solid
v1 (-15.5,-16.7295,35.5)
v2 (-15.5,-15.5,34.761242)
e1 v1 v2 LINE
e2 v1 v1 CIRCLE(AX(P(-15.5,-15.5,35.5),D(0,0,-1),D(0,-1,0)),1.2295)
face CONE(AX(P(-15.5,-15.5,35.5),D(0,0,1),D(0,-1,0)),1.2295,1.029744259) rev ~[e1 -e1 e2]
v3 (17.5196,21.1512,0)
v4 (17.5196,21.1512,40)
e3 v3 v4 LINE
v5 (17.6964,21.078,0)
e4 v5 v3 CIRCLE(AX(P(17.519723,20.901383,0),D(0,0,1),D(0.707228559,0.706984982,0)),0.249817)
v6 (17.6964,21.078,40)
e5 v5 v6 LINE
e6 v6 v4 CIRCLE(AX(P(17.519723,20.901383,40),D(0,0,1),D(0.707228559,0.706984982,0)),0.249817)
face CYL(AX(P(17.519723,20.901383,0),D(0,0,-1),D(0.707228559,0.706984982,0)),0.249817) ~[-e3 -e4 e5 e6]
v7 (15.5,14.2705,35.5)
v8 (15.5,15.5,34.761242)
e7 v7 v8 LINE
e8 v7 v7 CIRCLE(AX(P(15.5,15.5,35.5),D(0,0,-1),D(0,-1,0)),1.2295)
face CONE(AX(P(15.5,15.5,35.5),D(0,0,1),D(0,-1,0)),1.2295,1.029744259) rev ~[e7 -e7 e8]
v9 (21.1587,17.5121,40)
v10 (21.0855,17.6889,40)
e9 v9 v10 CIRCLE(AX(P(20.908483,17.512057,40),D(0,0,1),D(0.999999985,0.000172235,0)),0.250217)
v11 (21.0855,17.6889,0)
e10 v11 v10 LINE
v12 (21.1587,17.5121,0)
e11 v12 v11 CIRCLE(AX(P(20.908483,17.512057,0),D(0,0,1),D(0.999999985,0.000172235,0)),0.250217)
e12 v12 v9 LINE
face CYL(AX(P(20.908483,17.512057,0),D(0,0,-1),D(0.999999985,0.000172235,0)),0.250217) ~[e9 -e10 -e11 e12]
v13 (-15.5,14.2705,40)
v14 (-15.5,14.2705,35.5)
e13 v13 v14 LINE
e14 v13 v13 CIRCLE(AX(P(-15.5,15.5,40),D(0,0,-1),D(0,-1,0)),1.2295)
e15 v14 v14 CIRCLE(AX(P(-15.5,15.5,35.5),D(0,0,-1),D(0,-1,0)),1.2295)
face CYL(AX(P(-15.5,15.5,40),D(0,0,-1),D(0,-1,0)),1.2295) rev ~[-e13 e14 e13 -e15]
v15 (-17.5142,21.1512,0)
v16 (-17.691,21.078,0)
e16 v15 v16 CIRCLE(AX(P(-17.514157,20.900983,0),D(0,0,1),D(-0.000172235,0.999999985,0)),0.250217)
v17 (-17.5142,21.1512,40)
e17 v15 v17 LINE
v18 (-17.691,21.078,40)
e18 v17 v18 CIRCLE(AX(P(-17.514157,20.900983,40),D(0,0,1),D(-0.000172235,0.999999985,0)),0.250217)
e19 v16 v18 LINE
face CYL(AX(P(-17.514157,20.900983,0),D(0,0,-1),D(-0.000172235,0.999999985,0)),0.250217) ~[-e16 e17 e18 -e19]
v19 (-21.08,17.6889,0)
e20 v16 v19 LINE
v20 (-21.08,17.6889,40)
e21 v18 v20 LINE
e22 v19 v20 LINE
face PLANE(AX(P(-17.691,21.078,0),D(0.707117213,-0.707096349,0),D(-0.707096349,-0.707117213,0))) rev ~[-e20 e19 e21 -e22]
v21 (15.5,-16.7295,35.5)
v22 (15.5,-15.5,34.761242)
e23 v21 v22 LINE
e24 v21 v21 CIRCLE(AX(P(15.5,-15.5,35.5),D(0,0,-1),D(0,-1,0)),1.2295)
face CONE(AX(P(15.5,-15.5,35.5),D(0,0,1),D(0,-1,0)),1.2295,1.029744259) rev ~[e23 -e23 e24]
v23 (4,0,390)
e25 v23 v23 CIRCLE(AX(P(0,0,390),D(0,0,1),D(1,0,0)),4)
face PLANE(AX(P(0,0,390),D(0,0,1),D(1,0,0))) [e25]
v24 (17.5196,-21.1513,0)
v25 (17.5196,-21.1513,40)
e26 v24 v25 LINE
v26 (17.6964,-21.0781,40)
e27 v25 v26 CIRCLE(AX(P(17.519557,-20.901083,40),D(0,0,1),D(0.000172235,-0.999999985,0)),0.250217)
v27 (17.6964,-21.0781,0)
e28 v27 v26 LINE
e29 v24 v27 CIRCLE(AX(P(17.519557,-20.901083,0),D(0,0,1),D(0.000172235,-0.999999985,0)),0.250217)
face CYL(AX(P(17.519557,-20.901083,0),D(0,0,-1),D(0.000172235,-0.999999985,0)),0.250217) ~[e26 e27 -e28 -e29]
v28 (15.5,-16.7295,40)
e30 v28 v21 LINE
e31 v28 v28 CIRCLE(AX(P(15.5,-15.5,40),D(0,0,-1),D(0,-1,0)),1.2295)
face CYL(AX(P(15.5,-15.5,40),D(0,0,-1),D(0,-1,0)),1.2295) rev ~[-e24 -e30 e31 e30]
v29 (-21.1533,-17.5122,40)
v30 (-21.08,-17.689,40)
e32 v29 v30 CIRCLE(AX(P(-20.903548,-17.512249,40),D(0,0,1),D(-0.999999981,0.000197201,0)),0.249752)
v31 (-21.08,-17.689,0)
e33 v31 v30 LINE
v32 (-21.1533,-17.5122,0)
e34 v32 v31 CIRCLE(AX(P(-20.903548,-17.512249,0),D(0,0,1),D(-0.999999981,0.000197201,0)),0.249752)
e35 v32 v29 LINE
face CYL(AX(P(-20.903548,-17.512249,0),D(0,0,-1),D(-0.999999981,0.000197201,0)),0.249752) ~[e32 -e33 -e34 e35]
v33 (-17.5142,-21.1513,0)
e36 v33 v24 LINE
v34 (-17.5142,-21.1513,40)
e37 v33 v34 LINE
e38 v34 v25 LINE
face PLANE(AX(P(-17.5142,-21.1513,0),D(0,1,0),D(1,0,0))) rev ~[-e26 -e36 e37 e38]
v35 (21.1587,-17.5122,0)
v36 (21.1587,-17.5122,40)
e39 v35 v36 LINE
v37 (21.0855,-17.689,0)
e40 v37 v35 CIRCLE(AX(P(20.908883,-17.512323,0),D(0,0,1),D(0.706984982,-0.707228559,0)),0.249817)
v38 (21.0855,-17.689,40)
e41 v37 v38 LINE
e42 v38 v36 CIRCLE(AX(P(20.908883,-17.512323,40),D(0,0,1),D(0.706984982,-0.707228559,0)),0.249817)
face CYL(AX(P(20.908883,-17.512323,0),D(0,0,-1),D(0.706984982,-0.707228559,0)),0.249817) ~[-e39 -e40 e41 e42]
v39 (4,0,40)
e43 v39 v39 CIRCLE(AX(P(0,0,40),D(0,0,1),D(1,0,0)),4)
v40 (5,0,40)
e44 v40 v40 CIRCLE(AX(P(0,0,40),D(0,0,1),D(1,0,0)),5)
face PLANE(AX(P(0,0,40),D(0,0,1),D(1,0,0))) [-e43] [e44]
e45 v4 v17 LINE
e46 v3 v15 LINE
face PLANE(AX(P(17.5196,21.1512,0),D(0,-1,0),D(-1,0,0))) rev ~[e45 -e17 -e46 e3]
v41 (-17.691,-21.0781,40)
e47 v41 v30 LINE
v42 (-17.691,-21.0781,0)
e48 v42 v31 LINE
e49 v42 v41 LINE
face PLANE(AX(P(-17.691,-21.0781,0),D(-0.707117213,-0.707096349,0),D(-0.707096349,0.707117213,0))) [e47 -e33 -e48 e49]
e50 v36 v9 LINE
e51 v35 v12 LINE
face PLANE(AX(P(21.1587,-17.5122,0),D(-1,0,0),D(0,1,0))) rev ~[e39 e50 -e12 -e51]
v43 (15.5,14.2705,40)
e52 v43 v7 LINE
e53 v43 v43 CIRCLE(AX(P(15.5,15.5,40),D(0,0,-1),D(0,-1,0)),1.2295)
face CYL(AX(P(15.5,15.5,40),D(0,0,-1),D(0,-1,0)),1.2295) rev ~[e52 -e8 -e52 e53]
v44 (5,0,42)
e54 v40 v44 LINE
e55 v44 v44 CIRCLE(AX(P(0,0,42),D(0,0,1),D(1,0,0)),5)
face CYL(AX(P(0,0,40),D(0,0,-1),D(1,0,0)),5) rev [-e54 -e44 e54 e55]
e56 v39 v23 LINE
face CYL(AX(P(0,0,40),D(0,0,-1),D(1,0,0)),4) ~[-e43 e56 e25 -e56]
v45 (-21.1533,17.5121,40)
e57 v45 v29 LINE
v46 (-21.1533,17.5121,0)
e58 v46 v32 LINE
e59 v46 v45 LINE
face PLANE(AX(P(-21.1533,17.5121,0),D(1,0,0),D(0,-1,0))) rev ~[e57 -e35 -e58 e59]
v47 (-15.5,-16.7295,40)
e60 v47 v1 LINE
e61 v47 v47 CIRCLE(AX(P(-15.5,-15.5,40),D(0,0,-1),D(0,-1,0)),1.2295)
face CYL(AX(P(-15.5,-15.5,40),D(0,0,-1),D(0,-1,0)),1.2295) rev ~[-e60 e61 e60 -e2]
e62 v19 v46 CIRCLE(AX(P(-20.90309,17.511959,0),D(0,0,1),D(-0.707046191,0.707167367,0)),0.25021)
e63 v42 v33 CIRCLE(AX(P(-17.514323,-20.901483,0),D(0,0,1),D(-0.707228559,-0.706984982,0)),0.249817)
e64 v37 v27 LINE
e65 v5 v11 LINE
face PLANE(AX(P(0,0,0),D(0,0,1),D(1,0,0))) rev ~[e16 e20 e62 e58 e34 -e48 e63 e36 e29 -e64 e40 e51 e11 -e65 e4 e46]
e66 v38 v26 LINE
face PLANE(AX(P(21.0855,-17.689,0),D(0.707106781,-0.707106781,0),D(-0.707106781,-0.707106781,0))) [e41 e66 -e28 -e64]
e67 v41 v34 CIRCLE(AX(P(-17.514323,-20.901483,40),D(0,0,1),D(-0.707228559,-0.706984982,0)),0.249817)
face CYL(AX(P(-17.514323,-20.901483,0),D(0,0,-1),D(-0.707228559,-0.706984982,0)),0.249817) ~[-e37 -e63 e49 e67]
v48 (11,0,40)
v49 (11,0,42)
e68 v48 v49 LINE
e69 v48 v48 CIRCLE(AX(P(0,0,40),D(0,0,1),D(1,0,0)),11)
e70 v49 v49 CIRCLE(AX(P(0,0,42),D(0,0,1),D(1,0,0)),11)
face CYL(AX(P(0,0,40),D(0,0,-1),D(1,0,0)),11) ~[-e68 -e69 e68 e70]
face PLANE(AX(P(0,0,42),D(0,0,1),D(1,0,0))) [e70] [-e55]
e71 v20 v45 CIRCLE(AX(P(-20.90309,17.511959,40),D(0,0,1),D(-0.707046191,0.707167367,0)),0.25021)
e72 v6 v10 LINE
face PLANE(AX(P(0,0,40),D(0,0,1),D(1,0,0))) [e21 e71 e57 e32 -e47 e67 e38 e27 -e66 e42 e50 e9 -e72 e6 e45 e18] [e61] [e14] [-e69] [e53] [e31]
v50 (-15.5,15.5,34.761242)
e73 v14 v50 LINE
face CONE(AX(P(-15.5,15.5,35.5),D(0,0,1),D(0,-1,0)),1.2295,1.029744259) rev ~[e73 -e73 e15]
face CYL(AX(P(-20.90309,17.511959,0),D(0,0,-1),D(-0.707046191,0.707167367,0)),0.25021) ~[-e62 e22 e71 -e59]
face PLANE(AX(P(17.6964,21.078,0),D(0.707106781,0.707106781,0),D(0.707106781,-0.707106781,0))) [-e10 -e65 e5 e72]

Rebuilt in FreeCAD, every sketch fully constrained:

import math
import FreeCAD as App
import Part
import Sketcher

doc = App.newDocument("Part")
body = doc.addObject("PartDesign::Body", "Body")

sketch1 = body.newObject("Sketcher::SketchObject", "Sketch")
sketch1.AttachmentSupport = (doc.getObject("XY_Plane"), [""])
sketch1.MapMode = "FlatFace"
sketch1.addGeometry([
    Part.ArcOfCircle(Part.Circle(App.Vector(17.52, 20.9, 0), App.Vector(0, 0, 1), 0.25), math.radians(45), math.radians(90)),
    Part.LineSegment(App.Vector(17.52, 21.15, 0), App.Vector(-17.51, 21.15, 0)),
    Part.ArcOfCircle(Part.Circle(App.Vector(-17.51, 20.9, 0), App.Vector(0, 0, 1), 0.25), math.radians(90), math.radians(135)),
    Part.LineSegment(App.Vector(-17.69, 21.08, 0), App.Vector(-21.08, 17.69, 0)),
    Part.ArcOfCircle(Part.Circle(App.Vector(-20.9, 17.51, 0), App.Vector(0, 0, 1), 0.25), math.radians(135), math.radians(180)),
    Part.LineSegment(App.Vector(-21.15, 17.51, 0), App.Vector(-21.15, -17.51, 0)),
    Part.ArcOfCircle(Part.Circle(App.Vector(-20.9, -17.51, 0), App.Vector(0, 0, 1), 0.25), math.radians(180), math.radians(225)),
    Part.LineSegment(App.Vector(-21.08, -17.69, 0), App.Vector(-17.69, -21.08, 0)),
    Part.ArcOfCircle(Part.Circle(App.Vector(-17.51, -20.9, 0), App.Vector(0, 0, 1), 0.25), math.radians(-135), math.radians(-90)),
    Part.LineSegment(App.Vector(-17.51, -21.15, 0), App.Vector(17.52, -21.15, 0)),
    Part.ArcOfCircle(Part.Circle(App.Vector(17.52, -20.9, 0), App.Vector(0, 0, 1), 0.25), math.radians(-90), math.radians(-45)),
    Part.LineSegment(App.Vector(17.7, -21.08, 0), App.Vector(21.09, -17.69, 0)),
    Part.ArcOfCircle(Part.Circle(App.Vector(20.91, -17.51, 0), App.Vector(0, 0, 1), 0.25), math.radians(-45), math.radians(0)),
    Part.LineSegment(App.Vector(21.16, -17.51, 0), App.Vector(21.16, 17.51, 0)),
    Part.ArcOfCircle(Part.Circle(App.Vector(20.91, 17.51, 0), App.Vector(0, 0, 1), 0.25), math.radians(0), math.radians(45)),
    Part.LineSegment(App.Vector(21.09, 17.69, 0), App.Vector(17.7, 21.08, 0)),
], False)
sketch1.addConstraint([
    Sketcher.Constraint("Tangent", 0, 2, 1, 1),
    Sketcher.Constraint("Tangent", 1, 2, 2, 1),
    Sketcher.Constraint("Tangent", 2, 2, 3, 1),
    Sketcher.Constraint("Tangent", 3, 2, 4, 1),
    Sketcher.Constraint("Tangent", 4, 2, 5, 1),
    Sketcher.Constraint("Tangent", 5, 2, 6, 1),
    Sketcher.Constraint("Tangent", 6, 2, 7, 1),
    Sketcher.Constraint("Tangent", 7, 2, 8, 1),
    Sketcher.Constraint("Tangent", 8, 2, 9, 1),
    Sketcher.Constraint("Tangent", 9, 2, 10, 1),
    Sketcher.Constraint("Tangent", 10, 2, 11, 1),
    Sketcher.Constraint("Tangent", 11, 2, 12, 1),
    Sketcher.Constraint("Tangent", 12, 2, 13, 1),
    Sketcher.Constraint("Tangent", 13, 2, 14, 1),
    Sketcher.Constraint("Tangent", 14, 2, 15, 1),
    Sketcher.Constraint("Tangent", 15, 2, 0, 1),
    Sketcher.Constraint("Horizontal", 1),
    Sketcher.Constraint("Vertical", 5),
    Sketcher.Constraint("Horizontal", 9),
    Sketcher.Constraint("Vertical", 13),
    Sketcher.Constraint("Equal", 0, 2),
    Sketcher.Constraint("Equal", 2, 4),
    Sketcher.Constraint("Equal", 4, 6),
    Sketcher.Constraint("Equal", 6, 8),
    Sketcher.Constraint("Equal", 8, 10),
    Sketcher.Constraint("Equal", 10, 12),
    Sketcher.Constraint("Equal", 12, 14),
    Sketcher.Constraint("Symmetric", 2, 3, 8, 3, -1),
    Sketcher.Constraint("Symmetric", 11, 2, 14, 2, -1),
    Sketcher.Constraint("Perpendicular", 3, 7),
    Sketcher.Constraint("Perpendicular", 7, 11),
    Sketcher.Constraint("Perpendicular", 11, 15),
    Sketcher.Constraint("Horizontal", 6, 3, 12, 3),
    Sketcher.Constraint("Radius", 0, 0.25),
    Sketcher.Constraint("DistanceX", 3, 2, -1, 1, 21.08),
    Sketcher.Constraint("Distance", 11, 4.793),
    Sketcher.Constraint("DistanceX", 1, 2, 1, 1, 35.0338),
    Sketcher.Constraint("DistanceY", 5, 2, 5, 1, 35.0243),
])
pad1 = body.newObject("PartDesign::Pad", "Pad")
pad1.Profile = sketch1
pad1.Length = 40

sketch2 = body.newObject("Sketcher::SketchObject", "Sketch001")
sketch2.AttachmentSupport = (doc.getObject("XY_Plane"), [""])
sketch2.MapMode = "FlatFace"
sketch2.AttachmentOffset = App.Placement(App.Vector(0, 0, 40), App.Rotation())
sketch2.addGeometry([
    Part.Circle(App.Vector(0, 0, 0), App.Vector(0, 0, 1), 11),
    Part.Circle(App.Vector(0, 0, 0), App.Vector(0, 0, 1), 5),
], False)
sketch2.addConstraint([
    Sketcher.Constraint("Coincident", 0, 3, -1, 1),
    Sketcher.Constraint("Coincident", 1, 3, -1, 1),
    Sketcher.Constraint("Diameter", 0, 22.0),
    Sketcher.Constraint("Diameter", 1, 10.0),
])
pad2 = body.newObject("PartDesign::Pad", "Pad001")
pad2.Profile = sketch2
pad2.Length = 2

sketch3 = body.newObject("Sketcher::SketchObject", "Sketch002")
sketch3.AttachmentSupport = (doc.getObject("XY_Plane"), [""])
sketch3.MapMode = "FlatFace"
sketch3.AttachmentOffset = App.Placement(App.Vector(0, 0, 40), App.Rotation())
sketch3.addGeometry([
    Part.Circle(App.Vector(-15.5, 15.5, 0), App.Vector(0, 0, 1), 1.2),
    Part.Circle(App.Vector(15.5, 15.5, 0), App.Vector(0, 0, 1), 1.2),
    Part.Circle(App.Vector(15.5, -15.5, 0), App.Vector(0, 0, 1), 1.2),
    Part.Circle(App.Vector(-15.5, -15.5, 0), App.Vector(0, 0, 1), 1.2),
], False)
sketch3.addConstraint([
    Sketcher.Constraint("Equal", 0, 1),
    Sketcher.Constraint("Equal", 1, 2),
    Sketcher.Constraint("Equal", 2, 3),
    Sketcher.Constraint("Symmetric", 0, 3, 2, 3, -1, 1),
    Sketcher.Constraint("Symmetric", 1, 3, 3, 3, -1, 1),
    Sketcher.Constraint("Symmetric", 0, 3, 1, 3, -2),
    Sketcher.Constraint("Diameter", 0, 2.459),
    Sketcher.Constraint("DistanceX", 0, 3, 1, 3, 31.0),
    Sketcher.Constraint("DistanceY", 2, 3, 1, 3, 31.0),
])
doc.recompute()
hole = body.newObject("PartDesign::Hole", "Hole")
hole.Profile = sketch3
hole.ThreadType = "None"
hole.Diameter = 2.459
hole.DepthType = "Dimension"
hole.Depth = 4.5
hole.DrillPoint = "Angled"
hole.DrillPointAngle = 118

sketch4 = body.newObject("Sketcher::SketchObject", "Sketch003")
sketch4.AttachmentSupport = (doc.getObject("XY_Plane"), [""])
sketch4.MapMode = "FlatFace"
sketch4.AttachmentOffset = App.Placement(App.Vector(0, 0, 40), App.Rotation())
sketch4.addGeometry(Part.Circle(App.Vector(0, 0, 0), App.Vector(0, 0, 1), 4), False)
sketch4.addConstraint([
    Sketcher.Constraint("Coincident", 0, 3, -1, 1),
    Sketcher.Constraint("Diameter", 0, 8.0),
])
pad3 = body.newObject("PartDesign::Pad", "Pad002")
pad3.Profile = sketch4
pad3.Length = 350

doc.recompute()
